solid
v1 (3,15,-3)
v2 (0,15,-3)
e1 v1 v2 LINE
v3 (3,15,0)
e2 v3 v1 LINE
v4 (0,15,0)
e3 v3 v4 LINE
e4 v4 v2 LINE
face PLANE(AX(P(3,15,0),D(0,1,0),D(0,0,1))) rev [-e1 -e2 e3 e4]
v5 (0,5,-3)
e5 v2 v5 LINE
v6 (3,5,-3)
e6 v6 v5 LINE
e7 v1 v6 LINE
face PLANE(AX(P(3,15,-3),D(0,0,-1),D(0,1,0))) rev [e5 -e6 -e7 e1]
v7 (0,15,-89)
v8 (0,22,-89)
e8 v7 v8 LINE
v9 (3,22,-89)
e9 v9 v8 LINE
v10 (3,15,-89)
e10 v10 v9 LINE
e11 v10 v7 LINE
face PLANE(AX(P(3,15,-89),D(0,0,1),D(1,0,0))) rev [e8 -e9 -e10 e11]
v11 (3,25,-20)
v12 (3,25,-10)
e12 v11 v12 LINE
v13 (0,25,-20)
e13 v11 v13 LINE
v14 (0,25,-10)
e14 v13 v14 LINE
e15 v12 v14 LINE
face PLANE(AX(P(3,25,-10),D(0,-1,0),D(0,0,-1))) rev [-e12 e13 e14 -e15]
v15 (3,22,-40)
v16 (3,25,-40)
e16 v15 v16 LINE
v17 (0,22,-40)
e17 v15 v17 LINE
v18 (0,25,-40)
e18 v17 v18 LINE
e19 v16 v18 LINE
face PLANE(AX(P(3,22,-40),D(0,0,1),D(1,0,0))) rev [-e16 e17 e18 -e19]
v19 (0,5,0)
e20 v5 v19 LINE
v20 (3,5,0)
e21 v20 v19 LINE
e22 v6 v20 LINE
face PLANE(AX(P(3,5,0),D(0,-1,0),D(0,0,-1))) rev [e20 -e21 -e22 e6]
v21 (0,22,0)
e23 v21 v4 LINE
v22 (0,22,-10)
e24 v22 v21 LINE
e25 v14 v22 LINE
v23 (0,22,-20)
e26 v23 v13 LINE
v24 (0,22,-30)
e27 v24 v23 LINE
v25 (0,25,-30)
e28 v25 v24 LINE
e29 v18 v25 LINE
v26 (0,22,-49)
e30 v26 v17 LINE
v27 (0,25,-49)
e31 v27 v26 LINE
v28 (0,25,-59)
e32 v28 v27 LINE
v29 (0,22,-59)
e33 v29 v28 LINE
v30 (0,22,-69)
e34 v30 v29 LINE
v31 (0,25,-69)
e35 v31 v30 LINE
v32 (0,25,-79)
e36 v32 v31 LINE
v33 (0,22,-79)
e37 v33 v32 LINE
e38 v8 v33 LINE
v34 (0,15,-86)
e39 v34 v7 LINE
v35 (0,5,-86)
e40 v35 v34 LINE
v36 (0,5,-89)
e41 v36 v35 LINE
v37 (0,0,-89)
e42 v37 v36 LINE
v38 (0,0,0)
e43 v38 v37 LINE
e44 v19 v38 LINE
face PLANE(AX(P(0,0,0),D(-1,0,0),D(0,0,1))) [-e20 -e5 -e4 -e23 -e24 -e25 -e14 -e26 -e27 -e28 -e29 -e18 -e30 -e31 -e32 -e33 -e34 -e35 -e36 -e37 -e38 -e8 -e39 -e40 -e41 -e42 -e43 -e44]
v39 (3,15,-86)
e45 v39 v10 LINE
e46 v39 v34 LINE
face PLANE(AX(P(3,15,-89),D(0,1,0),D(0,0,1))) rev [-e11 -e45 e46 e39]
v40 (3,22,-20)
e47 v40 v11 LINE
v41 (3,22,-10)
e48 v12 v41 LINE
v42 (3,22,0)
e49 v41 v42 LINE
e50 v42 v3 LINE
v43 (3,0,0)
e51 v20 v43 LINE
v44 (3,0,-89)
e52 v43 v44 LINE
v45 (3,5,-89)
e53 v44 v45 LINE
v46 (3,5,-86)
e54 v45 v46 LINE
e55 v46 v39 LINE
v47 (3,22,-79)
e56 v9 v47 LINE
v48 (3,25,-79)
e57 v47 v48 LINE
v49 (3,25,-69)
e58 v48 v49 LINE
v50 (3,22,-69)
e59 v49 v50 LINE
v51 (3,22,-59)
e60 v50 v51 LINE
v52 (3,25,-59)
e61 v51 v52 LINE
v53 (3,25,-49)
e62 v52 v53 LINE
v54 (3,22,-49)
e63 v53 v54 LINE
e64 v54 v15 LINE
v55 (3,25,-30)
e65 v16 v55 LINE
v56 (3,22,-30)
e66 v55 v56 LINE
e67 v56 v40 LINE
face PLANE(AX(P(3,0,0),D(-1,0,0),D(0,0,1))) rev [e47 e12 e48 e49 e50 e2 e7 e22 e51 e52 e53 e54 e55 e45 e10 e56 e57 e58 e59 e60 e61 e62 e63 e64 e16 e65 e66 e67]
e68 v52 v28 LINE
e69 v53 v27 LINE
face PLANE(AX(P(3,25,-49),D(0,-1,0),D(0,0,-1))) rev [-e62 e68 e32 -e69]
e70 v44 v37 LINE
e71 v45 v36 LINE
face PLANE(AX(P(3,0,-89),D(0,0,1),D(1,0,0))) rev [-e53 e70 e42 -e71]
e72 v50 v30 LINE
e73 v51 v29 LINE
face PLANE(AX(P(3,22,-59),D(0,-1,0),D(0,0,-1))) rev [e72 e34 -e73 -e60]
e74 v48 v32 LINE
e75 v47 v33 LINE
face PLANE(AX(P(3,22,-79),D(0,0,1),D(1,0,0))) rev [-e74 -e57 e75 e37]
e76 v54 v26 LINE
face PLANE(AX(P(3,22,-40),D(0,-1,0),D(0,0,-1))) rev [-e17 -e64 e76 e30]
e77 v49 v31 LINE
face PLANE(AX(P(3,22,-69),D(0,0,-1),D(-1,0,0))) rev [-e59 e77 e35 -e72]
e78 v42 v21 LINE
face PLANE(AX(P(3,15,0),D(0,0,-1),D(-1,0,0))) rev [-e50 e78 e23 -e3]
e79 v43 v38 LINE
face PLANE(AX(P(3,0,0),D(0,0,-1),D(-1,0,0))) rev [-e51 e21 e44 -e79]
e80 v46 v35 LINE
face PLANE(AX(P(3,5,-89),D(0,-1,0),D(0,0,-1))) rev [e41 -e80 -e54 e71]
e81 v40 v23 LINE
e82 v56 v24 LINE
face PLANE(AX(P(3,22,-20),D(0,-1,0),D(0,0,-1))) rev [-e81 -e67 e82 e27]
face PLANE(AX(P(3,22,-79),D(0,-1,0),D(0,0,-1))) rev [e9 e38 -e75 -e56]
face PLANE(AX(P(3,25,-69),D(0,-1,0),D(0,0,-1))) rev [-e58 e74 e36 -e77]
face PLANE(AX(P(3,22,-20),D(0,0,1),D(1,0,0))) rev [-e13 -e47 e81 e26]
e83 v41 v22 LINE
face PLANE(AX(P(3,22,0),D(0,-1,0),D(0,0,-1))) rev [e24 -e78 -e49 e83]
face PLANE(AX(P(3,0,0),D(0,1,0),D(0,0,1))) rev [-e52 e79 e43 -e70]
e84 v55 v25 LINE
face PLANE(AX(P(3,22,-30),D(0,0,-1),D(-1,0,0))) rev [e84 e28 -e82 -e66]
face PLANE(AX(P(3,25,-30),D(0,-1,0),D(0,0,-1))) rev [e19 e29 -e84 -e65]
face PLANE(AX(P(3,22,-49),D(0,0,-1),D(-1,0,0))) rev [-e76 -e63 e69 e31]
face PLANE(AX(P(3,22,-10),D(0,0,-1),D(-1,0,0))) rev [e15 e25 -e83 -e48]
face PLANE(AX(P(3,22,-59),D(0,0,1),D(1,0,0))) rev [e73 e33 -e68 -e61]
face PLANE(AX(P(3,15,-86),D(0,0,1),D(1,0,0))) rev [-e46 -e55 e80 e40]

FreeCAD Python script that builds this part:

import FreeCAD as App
import Part
import Sketcher
Q = App.Units.Quantity


def add_polygon(sketch, points):
    """Adds a closed chain of lines whose ends are joined by coincident constraints."""
    first, n = sketch.GeometryCount, len(points)
    for a, b in zip(points, points[1:] + points[:1]):
        sketch.addGeometry(Part.LineSegment(App.Vector(*a, 0), App.Vector(*b, 0)), False)
    for i in range(n):
        sketch.addConstraint(Sketcher.Constraint("Coincident", first + i, 2, first + (i + 1) % n, 1))

doc = App.newDocument("Part")
body = doc.addObject("PartDesign::Body", "Body")

sketch1 = body.newObject("Sketcher::SketchObject", "Sketch")
sketch1.AttachmentSupport = (doc.getObject("YZ_Plane"), [""])
sketch1.MapMode = "FlatFace"
add_polygon(sketch1, [(22, 0), (15, 0), (15, -3), (5, -3), (5, 0), (0, 0), (0, -89), (5, -89), (5, -86), (15, -86), (15, -89), (22, -89), (22, -79), (25, -79), (25, -69), (22, -69), (22, -59), (25, -59), (25, -49), (22, -49), (22, -40), (25, -40), (25, -30), (22, -30), (22, -20), (25, -20), (25, -10), (22, -10)])
sketch1.addConstraint([
    Sketcher.Constraint("Horizontal", 0),
    Sketcher.Constraint("Vertical", 1),
    Sketcher.Constraint("Horizontal", 2),
    Sketcher.Constraint("Vertical", 3),
    Sketcher.Constraint("Horizontal", 4),
    Sketcher.Constraint("Vertical", 5),
    Sketcher.Constraint("Horizontal", 6),
    Sketcher.Constraint("Vertical", 7),
    Sketcher.Constraint("Horizontal", 8),
    Sketcher.Constraint("Vertical", 9),
    Sketcher.Constraint("Horizontal", 10),
    Sketcher.Constraint("Vertical", 11),
    Sketcher.Constraint("Horizontal", 12),
    Sketcher.Constraint("Vertical", 13),
    Sketcher.Constraint("Horizontal", 14),
    Sketcher.Constraint("Vertical", 15),
    Sketcher.Constraint("Horizontal", 16),
    Sketcher.Constraint("Vertical", 17),
    Sketcher.Constraint("Horizontal", 18),
    Sketcher.Constraint("Vertical", 19),
    Sketcher.Constraint("Horizontal", 20),
    Sketcher.Constraint("Vertical", 21),
    Sketcher.Constraint("Horizontal", 22),
    Sketcher.Constraint("Vertical", 23),
    Sketcher.Constraint("Horizontal", 24),
    Sketcher.Constraint("Vertical", 25),
    Sketcher.Constraint("Horizontal", 26),
    Sketcher.Constraint("Vertical", 27),
    Sketcher.Constraint("Coincident", 4, 2, -1, 1),
    Sketcher.Constraint("PointOnObject", 0, 2, -1),
    Sketcher.Constraint("Horizontal", 6, 2, 9, 2),
    Sketcher.Constraint("Vertical", 3, 2, 6, 2),
    Sketcher.Constraint("Vertical", 1, 2, 8, 2),
    Sketcher.Constraint("Vertical", 11, 2, 14, 2),
    Sketcher.Constraint("Vertical", 13, 2, 16, 2),
    Sketcher.Constraint("Vertical", 15, 2, 18, 2),
    Sketcher.Constraint("Vertical", 17, 2, 20, 2),
    Sketcher.Constraint("Vertical", 19, 2, 22, 2),
    Sketcher.Constraint("Vertical", 21, 2, 24, 2),
    Sketcher.Constraint("Vertical", 23, 2, 26, 2),
    Sketcher.Constraint("Equal", 26, 1),
    Sketcher.Constraint("Equal", 3, 7),
    Sketcher.Constraint("Equal", 8, 11),
    Sketcher.Constraint("Equal", 11, 13),
    Sketcher.Constraint("Equal", 13, 15),
    Sketcher.Constraint("Equal", 15, 17),
    Sketcher.Constraint("Equal", 17, 21),
    Sketcher.Constraint("Equal", 21, 23),
    Sketcher.Constraint("Equal", 23, 25),
    Sketcher.Constraint("Equal", 25, 27),
    Sketcher.Constraint("DistanceX", 0, 2, 0, 1, Q("7 mm")),
    Sketcher.Constraint("DistanceX", 2, 2, 2, 1, Q("10 mm")),
    Sketcher.Constraint("DistanceX", 4, 2, 4, 1, Q("5 mm")),
    Sketcher.Constraint("DistanceX", 12, 1, 12, 2, Q("3 mm")),
    Sketcher.Constraint("DistanceY", 5, 2, 5, 1, Q("89 mm")),
])
pad1 = body.newObject("PartDesign::Pad", "Pad")
pad1.Profile = sketch1
pad1.Length = 3

doc.recompute()
